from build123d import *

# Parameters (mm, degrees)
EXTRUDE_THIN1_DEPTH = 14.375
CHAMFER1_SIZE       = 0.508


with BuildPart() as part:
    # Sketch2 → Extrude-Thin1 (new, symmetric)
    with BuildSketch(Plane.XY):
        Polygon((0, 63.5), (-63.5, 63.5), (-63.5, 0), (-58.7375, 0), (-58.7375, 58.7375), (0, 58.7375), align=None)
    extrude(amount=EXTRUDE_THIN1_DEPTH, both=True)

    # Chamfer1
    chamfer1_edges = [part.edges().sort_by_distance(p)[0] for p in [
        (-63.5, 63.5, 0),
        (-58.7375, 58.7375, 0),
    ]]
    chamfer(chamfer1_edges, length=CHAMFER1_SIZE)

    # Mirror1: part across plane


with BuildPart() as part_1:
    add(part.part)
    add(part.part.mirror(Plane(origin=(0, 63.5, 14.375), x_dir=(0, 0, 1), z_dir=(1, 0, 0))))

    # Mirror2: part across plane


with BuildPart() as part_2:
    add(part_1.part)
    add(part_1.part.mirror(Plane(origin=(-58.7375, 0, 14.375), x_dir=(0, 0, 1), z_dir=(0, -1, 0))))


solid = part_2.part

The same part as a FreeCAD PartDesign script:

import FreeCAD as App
import Part
import Sketcher
from FreeCAD import Vector
Q = App.Units.Quantity


def edges_at(feature, points):
    """Names of the edges that pass closest to the given points."""
    edges = feature.Shape.Edges
    near = lambda p: min(range(len(edges)), key=lambda i: edges[i].distToShape(Part.Vertex(*p))[0])
    return sorted({f"Edge{near(p) + 1}" for p in points})

doc = App.newDocument("Part")
body = doc.addObject("PartDesign::Body", "Body")

sketch1 = body.newObject("Sketcher::SketchObject", "Sketch")
sketch1.AttachmentSupport = (doc.getObject("XY_Plane"), [""])
sketch1.MapMode = "FlatFace"
sketch1.addGeometry(Part.LineSegment(Vector(0, 63.5, 0), Vector(-63.5, 63.5, 0)), False)
sketch1.addGeometry(Part.LineSegment(Vector(-63.5, 63.5, 0), Vector(-63.5, 0, 0)), False)
sketch1.addGeometry(Part.LineSegment(Vector(-63.5, 0, 0), Vector(-58.7375, 0, 0)), False)
sketch1.addGeometry(Part.LineSegment(Vector(-58.7375, 0, 0), Vector(-58.7375, 58.7375, 0)), False)
sketch1.addGeometry(Part.LineSegment(Vector(-58.7375, 58.7375, 0), Vector(0, 58.7375, 0)), False)
sketch1.addGeometry(Part.LineSegment(Vector(0, 58.7375, 0), Vector(0, 63.5, 0)), False)
sketch1.addConstraint(Sketcher.Constraint("Coincident", 0, 2, 1, 1))
sketch1.addConstraint(Sketcher.Constraint("Coincident", 1, 2, 2, 1))
sketch1.addConstraint(Sketcher.Constraint("Coincident", 2, 2, 3, 1))
sketch1.addConstraint(Sketcher.Constraint("Coincident", 3, 2, 4, 1))
sketch1.addConstraint(Sketcher.Constraint("Coincident", 4, 2, 5, 1))
sketch1.addConstraint(Sketcher.Constraint("Coincident", 5, 2, 0, 1))
sketch1.addConstraint(Sketcher.Constraint("Horizontal", 0))
sketch1.addConstraint(Sketcher.Constraint("Vertical", 1))
sketch1.addConstraint(Sketcher.Constraint("Horizontal", 2))
sketch1.addConstraint(Sketcher.Constraint("Vertical", 3))
sketch1.addConstraint(Sketcher.Constraint("Horizontal", 4))
sketch1.addConstraint(Sketcher.Constraint("Vertical", 5))
sketch1.addConstraint(Sketcher.Constraint("PointOnObject", 1, 2, -1))
sketch1.addConstraint(Sketcher.Constraint("PointOnObject", 4, 2, -2))
sketch1.addConstraint(Sketcher.Constraint("Equal", 0, 1))
sketch1.addConstraint(Sketcher.Constraint("Equal", 4, 3))
sketch1.addConstraint(Sketcher.Constraint("DistanceX", 0, 2, 0, 1, Q("2.5 in")))
sketch1.addConstraint(Sketcher.Constraint("DistanceX", 2, 1, 2, 2, Q("0.1875 in")))
pad1 = body.newObject("PartDesign::Pad", "Pad")
pad1.Profile = sketch1
pad1.Length = 28.75
pad1.Midplane = True
doc.recompute()

chamfer = body.newObject("PartDesign::Chamfer", "Chamfer")
chamfer.Base = (pad1, edges_at(pad1, [(-63.5, 63.5, 0), (-58.737, 58.737, 0)]))
chamfer.Size = Q("0.02 in")
body2 = doc.addObject("PartDesign::Body", "Body001")
doc.recompute()

body2.BaseFeature = body
doc.recompute()

mirroring = doc.addObject("Part::Mirroring", "Mirroring")
mirroring.Source = body
mirroring.Base = Vector(0, 63.5, 14.375)
mirroring.Normal = Vector(1, 0, 0)
body3 = doc.addObject("PartDesign::Body", "Body002")
body3.BaseFeature = mirroring
boolean = body2.newObject("PartDesign::Boolean", "Boolean")
boolean.Type = "Fuse"
boolean.addObjects([body3])
doc.recompute()
body4 = doc.addObject("PartDesign::Body", "Body003")
doc.recompute()

body4.BaseFeature = body2
doc.recompute()

mirroring2 = doc.addObject("Part::Mirroring", "Mirroring001")
mirroring2.Source = body2
mirroring2.Base = Vector(-58.7375, 0, 14.375)
mirroring2.Normal = Vector(0, -1, 0)
body5 = doc.addObject("PartDesign::Body", "Body004")
body5.BaseFeature = mirroring2
boolean2 = body4.newObject("PartDesign::Boolean", "Boolean001")
boolean2.Type = "Fuse"
boolean2.addObjects([body5])
doc.recompute()
mirroring.Visibility = False
mirroring2.Visibility = False

doc.recompute()
